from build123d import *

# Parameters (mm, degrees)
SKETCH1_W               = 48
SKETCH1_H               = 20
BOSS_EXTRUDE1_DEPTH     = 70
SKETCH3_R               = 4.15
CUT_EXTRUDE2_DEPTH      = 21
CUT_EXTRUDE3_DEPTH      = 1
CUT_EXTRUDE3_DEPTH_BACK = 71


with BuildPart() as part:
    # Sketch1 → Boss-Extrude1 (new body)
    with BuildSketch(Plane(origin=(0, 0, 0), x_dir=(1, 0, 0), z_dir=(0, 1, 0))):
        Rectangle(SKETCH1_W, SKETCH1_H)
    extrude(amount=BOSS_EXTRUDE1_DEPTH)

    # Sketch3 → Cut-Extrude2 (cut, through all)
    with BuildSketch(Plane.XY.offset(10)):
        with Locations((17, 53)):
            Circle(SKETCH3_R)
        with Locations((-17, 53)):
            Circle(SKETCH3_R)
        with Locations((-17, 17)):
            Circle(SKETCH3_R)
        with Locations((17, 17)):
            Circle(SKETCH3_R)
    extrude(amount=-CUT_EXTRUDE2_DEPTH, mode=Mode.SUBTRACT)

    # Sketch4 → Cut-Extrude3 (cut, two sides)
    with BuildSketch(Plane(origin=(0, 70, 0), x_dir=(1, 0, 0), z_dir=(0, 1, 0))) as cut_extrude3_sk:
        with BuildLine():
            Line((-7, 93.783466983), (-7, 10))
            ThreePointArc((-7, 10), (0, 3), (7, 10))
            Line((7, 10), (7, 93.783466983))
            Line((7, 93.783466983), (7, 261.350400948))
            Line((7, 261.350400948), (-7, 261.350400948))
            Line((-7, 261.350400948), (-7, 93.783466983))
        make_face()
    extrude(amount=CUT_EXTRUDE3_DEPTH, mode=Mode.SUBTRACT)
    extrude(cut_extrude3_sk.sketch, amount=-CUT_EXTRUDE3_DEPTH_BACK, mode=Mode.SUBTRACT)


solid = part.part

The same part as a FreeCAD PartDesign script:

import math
import FreeCAD as App
import Part
import Sketcher
Q = App.Units.Quantity

doc = App.newDocument("Part")
body = doc.addObject("PartDesign::Body", "Body")

sketch1 = doc.addObject("Sketcher::SketchObject", "Sketch")
body.addObject(sketch1)
sketch1.AttachmentSupport = (doc.XZ_Plane, [""])
sketch1.MapMode = "FlatFace"
sketch1.addGeometry([
    Part.LineSegment(App.Vector(-24, -10, 0), App.Vector(-24, 10, 0)),
    Part.LineSegment(App.Vector(-24, 10, 0), App.Vector(24, 10, 0)),
    Part.LineSegment(App.Vector(24, 10, 0), App.Vector(24, -10, 0)),
    Part.LineSegment(App.Vector(24, -10, 0), App.Vector(-24, -10, 0)),
], False)
sketch1.addConstraint([
    Sketcher.Constraint("Coincident", 0, 2, 1, 1),
    Sketcher.Constraint("Coincident", 1, 2, 2, 1),
    Sketcher.Constraint("Coincident", 2, 2, 3, 1),
    Sketcher.Constraint("Coincident", 3, 2, 0, 1),
    Sketcher.Constraint("Vertical", 0),
    Sketcher.Constraint("Horizontal", 1),
    Sketcher.Constraint("Vertical", 2),
    Sketcher.Constraint("Horizontal", 3),
    Sketcher.Constraint("Symmetric", 0, 2, 2, 2, -1, 1),
    Sketcher.Constraint("DistanceX", 1, 1, 1, 2, Q("48 mm")),
    Sketcher.Constraint("DistanceY", 0, 1, 0, 2, Q("20 mm")),
])
pad1 = doc.addObject("PartDesign::Pad", "Pad")
body.addObject(pad1)
pad1.Profile = sketch1
pad1.Length = 70
pad1.Reversed = True

sketch2 = doc.addObject("Sketcher::SketchObject", "Sketch001")
body.addObject(sketch2)
sketch2.AttachmentSupport = (doc.XY_Plane, [""])
sketch2.MapMode = "FlatFace"
sketch2.AttachmentOffset = App.Placement(App.Vector(0, 0, 10), App.Rotation())
sketch2.addGeometry([
    Part.Circle(App.Vector(17, 53, 0), App.Vector(0, 0, 1), 4.2),
    Part.Circle(App.Vector(-17, 53, 0), App.Vector(0, 0, 1), 4.2),
    Part.Circle(App.Vector(-17, 17, 0), App.Vector(0, 0, 1), 4.2),
    Part.Circle(App.Vector(17, 17, 0), App.Vector(0, 0, 1), 4.2),
], False)
sketch2.addConstraint([
    Sketcher.Constraint("Equal", 0, 1),
    Sketcher.Constraint("Equal", 1, 2),
    Sketcher.Constraint("Equal", 2, 3),
    Sketcher.Constraint("Symmetric", 0, 3, 1, 3, -2),
    Sketcher.Constraint("Symmetric", 2, 3, 3, 3, -2),
    Sketcher.Constraint("Vertical", 1, 3, 2, 3),
    Sketcher.Constraint("Diameter", 0, Q("8.3 mm")),
    Sketcher.Constraint("DistanceX", -1, 1, 0, 3, Q("17 mm")),
    Sketcher.Constraint("DistanceY", -1, 1, 0, 3, Q("53 mm")),
    Sketcher.Constraint("DistanceY", -1, 1, 2, 3, Q("17 mm")),
])
pocket1 = doc.addObject("PartDesign::Pocket", "Pocket")
body.addObject(pocket1)
pocket1.Profile = sketch2
pocket1.Type = "ThroughAll"

sketch3 = doc.addObject("Sketcher::SketchObject", "Sketch002")
body.addObject(sketch3)
sketch3.AttachmentSupport = (doc.XZ_Plane, [""])
sketch3.MapMode = "FlatFace"
sketch3.AttachmentOffset = App.Placement(App.Vector(0, 0, -70), App.Rotation())
sketch3.addGeometry([
    Part.ArcOfCircle(Part.Circle(App.Vector(0, -10, 0), App.Vector(0, 0, 1), 7), math.radians(0), math.radians(180)),
    Part.LineSegment(App.Vector(7, -10, 0), App.Vector(7, -261, 0)),
    Part.LineSegment(App.Vector(7, -261, 0), App.Vector(-7, -261, 0)),
    Part.LineSegment(App.Vector(-7, -261, 0), App.Vector(-7, -10, 0)),
], False)
sketch3.addConstraint([
    Sketcher.Constraint("Tangent", 0, 1, 1, 1),
    Sketcher.Constraint("Coincident", 1, 2, 2, 1),
    Sketcher.Constraint("Coincident", 2, 2, 3, 1),
    Sketcher.Constraint("Tangent", 3, 2, 0, 2),
    Sketcher.Constraint("Vertical", 1),
    Sketcher.Constraint("Horizontal", 2),
    Sketcher.Constraint("Vertical", 3),
    Sketcher.Constraint("PointOnObject", 0, 3, -2),
    Sketcher.Constraint("Radius", 0, Q("7 mm")),
    Sketcher.Constraint("DistanceY", 0, 3, -1, 1, Q("10 mm")),
    Sketcher.Constraint("DistanceY", 1, 2, 1, 1, Q("251.350401 mm")),
])
pocket2 = doc.addObject("PartDesign::Pocket", "Pocket001")
body.addObject(pocket2)
pocket2.Profile = sketch3
pocket2.Type = "ThroughAll"
pocket2.Midplane = True

doc.recompute()
